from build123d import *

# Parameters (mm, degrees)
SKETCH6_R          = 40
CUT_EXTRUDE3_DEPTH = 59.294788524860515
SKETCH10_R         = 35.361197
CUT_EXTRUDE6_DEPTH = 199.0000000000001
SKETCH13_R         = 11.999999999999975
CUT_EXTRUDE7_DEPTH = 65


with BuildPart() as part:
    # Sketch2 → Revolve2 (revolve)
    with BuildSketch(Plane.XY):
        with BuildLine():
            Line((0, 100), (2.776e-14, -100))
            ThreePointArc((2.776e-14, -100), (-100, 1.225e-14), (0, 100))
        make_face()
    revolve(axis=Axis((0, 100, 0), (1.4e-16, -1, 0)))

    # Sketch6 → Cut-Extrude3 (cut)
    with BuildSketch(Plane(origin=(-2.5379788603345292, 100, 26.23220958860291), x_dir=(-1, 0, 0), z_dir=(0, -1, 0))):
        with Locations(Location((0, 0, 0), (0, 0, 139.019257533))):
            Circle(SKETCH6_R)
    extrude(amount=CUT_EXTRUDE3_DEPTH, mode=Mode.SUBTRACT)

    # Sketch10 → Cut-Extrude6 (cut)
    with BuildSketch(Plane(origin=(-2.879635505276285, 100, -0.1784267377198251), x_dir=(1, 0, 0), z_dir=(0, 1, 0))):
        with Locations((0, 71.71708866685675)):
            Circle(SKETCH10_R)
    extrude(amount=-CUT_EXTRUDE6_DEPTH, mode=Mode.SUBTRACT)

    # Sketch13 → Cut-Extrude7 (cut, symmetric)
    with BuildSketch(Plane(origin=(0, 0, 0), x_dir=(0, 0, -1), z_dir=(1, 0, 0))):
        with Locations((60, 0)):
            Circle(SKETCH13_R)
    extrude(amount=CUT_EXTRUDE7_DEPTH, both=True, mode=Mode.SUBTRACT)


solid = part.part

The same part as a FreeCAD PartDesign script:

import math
import FreeCAD as App
import Part
import Sketcher

V = App.Vector
Q = App.Units.Quantity

doc = App.newDocument("Part")
params = doc.addObject("Spreadsheet::Sheet", "Params")
for row, (alias, value) in enumerate([
    ("sketch1_radius", "100 mm"),
    ("revolution_angle", "360 deg"),
    ("sketch2_diameter", "80 mm"),
    ("pocket1_length", "59.294789 mm"),
    ("pocket2_length", "199 mm"),
    ("sketch4_diameter", "24 mm"),
    ("pocket3_length", "130 mm"),
], start=1):
    params.set(f"A{row}", alias)
    params.set(f"B{row}", "=" + value)
    params.setAlias(f"B{row}", alias)

body = doc.addObject("PartDesign::Body", "Body")

sketch1 = body.newObject("Sketcher::SketchObject", "Sketch")
sketch1.AttachmentSupport = (doc.getObject("XY_Plane"), [""])
sketch1.MapMode = "FlatFace"
sketch1.addGeometry([
    Part.LineSegment(V(0, -100, 0), V(0, 100, 0)),
    Part.ArcOfCircle(Part.Circle(V(0, 0, 0), V(0, 0, 1), 100), math.radians(90), math.radians(270)),
], False)
sketch1.addConstraint([
    Sketcher.Constraint("Coincident", 0, 1, 1, 2),
    Sketcher.Constraint("Coincident", 1, 1, 0, 2),
    Sketcher.Constraint("Vertical", 0),
    Sketcher.Constraint("Coincident", 1, 3, -1, 1),
    Sketcher.Constraint("PointOnObject", 0, 1, -2),
    Sketcher.Constraint("Radius", 1, Q("100 mm")),
])
sketch1.setExpression("Constraints[5]", "Params.sketch1_radius")
revolution = body.newObject("PartDesign::Revolution", "Revolution")
revolution.Profile = sketch1
revolution.ReferenceAxis = (sketch1, ["V_Axis"])
revolution.setExpression("Angle", "Params.revolution_angle")

sketch2 = body.newObject("Sketcher::SketchObject", "Sketch001")
sketch2.AttachmentSupport = (doc.getObject("XZ_Plane"), [""])
sketch2.MapMode = "FlatFace"
sketch2.AttachmentOffset = App.Placement(V(0, 0, -100), App.Rotation())
sketch2.addGeometry(Part.Circle(V(-3, 26, 0), V(0, 0, 1), 40), False)
sketch2.addConstraint([
    Sketcher.Constraint("Diameter", 0, Q("80 mm")),
    Sketcher.Constraint("DistanceX", 0, 3, -1, 1, Q("2.537979 mm")),
    Sketcher.Constraint("DistanceY", -1, 1, 0, 3, Q("26.23221 mm")),
])
sketch2.setExpression("Constraints[0]", "Params.sketch2_diameter")
pocket1 = body.newObject("PartDesign::Pocket", "Pocket")
pocket1.Profile = sketch2
pocket1.setExpression("Length", "Params.pocket1_length")
pocket1.Reversed = True

sketch3 = body.newObject("Sketcher::SketchObject", "Sketch002")
sketch3.AttachmentSupport = (doc.getObject("XZ_Plane"), [""])
sketch3.MapMode = "FlatFace"
sketch3.AttachmentOffset = App.Placement(V(0, 0, -100), App.Rotation())
sketch3.addGeometry(Part.Circle(V(-3, -72, 0), V(0, 0, 1), 35), False)
sketch3.addConstraint([
    Sketcher.Constraint("Diameter", 0, Q("70.722394 mm")),
    Sketcher.Constraint("DistanceX", 0, 3, -1, 1, Q("2.879636 mm")),
    Sketcher.Constraint("DistanceY", 0, 3, -1, 1, Q("71.895515 mm")),
])
pocket2 = body.newObject("PartDesign::Pocket", "Pocket001")
pocket2.Profile = sketch3
pocket2.setExpression("Length", "Params.pocket2_length")
pocket2.Reversed = True

sketch4 = body.newObject("Sketcher::SketchObject", "Sketch003")
sketch4.AttachmentSupport = (doc.getObject("YZ_Plane"), [""])
sketch4.MapMode = "FlatFace"
sketch4.addGeometry(Part.Circle(V(0, -60, 0), V(0, 0, 1), 12), False)
sketch4.addConstraint([
    Sketcher.Constraint("PointOnObject", 0, 3, -2),
    Sketcher.Constraint("Diameter", 0, Q("24 mm")),
    Sketcher.Constraint("DistanceY", 0, 3, -1, 1, Q("60 mm")),
])
sketch4.setExpression("Constraints[1]", "Params.sketch4_diameter")
pocket3 = body.newObject("PartDesign::Pocket", "Pocket002")
pocket3.Profile = sketch4
pocket3.setExpression("Length", "Params.pocket3_length")
pocket3.Midplane = True

doc.recompute()
